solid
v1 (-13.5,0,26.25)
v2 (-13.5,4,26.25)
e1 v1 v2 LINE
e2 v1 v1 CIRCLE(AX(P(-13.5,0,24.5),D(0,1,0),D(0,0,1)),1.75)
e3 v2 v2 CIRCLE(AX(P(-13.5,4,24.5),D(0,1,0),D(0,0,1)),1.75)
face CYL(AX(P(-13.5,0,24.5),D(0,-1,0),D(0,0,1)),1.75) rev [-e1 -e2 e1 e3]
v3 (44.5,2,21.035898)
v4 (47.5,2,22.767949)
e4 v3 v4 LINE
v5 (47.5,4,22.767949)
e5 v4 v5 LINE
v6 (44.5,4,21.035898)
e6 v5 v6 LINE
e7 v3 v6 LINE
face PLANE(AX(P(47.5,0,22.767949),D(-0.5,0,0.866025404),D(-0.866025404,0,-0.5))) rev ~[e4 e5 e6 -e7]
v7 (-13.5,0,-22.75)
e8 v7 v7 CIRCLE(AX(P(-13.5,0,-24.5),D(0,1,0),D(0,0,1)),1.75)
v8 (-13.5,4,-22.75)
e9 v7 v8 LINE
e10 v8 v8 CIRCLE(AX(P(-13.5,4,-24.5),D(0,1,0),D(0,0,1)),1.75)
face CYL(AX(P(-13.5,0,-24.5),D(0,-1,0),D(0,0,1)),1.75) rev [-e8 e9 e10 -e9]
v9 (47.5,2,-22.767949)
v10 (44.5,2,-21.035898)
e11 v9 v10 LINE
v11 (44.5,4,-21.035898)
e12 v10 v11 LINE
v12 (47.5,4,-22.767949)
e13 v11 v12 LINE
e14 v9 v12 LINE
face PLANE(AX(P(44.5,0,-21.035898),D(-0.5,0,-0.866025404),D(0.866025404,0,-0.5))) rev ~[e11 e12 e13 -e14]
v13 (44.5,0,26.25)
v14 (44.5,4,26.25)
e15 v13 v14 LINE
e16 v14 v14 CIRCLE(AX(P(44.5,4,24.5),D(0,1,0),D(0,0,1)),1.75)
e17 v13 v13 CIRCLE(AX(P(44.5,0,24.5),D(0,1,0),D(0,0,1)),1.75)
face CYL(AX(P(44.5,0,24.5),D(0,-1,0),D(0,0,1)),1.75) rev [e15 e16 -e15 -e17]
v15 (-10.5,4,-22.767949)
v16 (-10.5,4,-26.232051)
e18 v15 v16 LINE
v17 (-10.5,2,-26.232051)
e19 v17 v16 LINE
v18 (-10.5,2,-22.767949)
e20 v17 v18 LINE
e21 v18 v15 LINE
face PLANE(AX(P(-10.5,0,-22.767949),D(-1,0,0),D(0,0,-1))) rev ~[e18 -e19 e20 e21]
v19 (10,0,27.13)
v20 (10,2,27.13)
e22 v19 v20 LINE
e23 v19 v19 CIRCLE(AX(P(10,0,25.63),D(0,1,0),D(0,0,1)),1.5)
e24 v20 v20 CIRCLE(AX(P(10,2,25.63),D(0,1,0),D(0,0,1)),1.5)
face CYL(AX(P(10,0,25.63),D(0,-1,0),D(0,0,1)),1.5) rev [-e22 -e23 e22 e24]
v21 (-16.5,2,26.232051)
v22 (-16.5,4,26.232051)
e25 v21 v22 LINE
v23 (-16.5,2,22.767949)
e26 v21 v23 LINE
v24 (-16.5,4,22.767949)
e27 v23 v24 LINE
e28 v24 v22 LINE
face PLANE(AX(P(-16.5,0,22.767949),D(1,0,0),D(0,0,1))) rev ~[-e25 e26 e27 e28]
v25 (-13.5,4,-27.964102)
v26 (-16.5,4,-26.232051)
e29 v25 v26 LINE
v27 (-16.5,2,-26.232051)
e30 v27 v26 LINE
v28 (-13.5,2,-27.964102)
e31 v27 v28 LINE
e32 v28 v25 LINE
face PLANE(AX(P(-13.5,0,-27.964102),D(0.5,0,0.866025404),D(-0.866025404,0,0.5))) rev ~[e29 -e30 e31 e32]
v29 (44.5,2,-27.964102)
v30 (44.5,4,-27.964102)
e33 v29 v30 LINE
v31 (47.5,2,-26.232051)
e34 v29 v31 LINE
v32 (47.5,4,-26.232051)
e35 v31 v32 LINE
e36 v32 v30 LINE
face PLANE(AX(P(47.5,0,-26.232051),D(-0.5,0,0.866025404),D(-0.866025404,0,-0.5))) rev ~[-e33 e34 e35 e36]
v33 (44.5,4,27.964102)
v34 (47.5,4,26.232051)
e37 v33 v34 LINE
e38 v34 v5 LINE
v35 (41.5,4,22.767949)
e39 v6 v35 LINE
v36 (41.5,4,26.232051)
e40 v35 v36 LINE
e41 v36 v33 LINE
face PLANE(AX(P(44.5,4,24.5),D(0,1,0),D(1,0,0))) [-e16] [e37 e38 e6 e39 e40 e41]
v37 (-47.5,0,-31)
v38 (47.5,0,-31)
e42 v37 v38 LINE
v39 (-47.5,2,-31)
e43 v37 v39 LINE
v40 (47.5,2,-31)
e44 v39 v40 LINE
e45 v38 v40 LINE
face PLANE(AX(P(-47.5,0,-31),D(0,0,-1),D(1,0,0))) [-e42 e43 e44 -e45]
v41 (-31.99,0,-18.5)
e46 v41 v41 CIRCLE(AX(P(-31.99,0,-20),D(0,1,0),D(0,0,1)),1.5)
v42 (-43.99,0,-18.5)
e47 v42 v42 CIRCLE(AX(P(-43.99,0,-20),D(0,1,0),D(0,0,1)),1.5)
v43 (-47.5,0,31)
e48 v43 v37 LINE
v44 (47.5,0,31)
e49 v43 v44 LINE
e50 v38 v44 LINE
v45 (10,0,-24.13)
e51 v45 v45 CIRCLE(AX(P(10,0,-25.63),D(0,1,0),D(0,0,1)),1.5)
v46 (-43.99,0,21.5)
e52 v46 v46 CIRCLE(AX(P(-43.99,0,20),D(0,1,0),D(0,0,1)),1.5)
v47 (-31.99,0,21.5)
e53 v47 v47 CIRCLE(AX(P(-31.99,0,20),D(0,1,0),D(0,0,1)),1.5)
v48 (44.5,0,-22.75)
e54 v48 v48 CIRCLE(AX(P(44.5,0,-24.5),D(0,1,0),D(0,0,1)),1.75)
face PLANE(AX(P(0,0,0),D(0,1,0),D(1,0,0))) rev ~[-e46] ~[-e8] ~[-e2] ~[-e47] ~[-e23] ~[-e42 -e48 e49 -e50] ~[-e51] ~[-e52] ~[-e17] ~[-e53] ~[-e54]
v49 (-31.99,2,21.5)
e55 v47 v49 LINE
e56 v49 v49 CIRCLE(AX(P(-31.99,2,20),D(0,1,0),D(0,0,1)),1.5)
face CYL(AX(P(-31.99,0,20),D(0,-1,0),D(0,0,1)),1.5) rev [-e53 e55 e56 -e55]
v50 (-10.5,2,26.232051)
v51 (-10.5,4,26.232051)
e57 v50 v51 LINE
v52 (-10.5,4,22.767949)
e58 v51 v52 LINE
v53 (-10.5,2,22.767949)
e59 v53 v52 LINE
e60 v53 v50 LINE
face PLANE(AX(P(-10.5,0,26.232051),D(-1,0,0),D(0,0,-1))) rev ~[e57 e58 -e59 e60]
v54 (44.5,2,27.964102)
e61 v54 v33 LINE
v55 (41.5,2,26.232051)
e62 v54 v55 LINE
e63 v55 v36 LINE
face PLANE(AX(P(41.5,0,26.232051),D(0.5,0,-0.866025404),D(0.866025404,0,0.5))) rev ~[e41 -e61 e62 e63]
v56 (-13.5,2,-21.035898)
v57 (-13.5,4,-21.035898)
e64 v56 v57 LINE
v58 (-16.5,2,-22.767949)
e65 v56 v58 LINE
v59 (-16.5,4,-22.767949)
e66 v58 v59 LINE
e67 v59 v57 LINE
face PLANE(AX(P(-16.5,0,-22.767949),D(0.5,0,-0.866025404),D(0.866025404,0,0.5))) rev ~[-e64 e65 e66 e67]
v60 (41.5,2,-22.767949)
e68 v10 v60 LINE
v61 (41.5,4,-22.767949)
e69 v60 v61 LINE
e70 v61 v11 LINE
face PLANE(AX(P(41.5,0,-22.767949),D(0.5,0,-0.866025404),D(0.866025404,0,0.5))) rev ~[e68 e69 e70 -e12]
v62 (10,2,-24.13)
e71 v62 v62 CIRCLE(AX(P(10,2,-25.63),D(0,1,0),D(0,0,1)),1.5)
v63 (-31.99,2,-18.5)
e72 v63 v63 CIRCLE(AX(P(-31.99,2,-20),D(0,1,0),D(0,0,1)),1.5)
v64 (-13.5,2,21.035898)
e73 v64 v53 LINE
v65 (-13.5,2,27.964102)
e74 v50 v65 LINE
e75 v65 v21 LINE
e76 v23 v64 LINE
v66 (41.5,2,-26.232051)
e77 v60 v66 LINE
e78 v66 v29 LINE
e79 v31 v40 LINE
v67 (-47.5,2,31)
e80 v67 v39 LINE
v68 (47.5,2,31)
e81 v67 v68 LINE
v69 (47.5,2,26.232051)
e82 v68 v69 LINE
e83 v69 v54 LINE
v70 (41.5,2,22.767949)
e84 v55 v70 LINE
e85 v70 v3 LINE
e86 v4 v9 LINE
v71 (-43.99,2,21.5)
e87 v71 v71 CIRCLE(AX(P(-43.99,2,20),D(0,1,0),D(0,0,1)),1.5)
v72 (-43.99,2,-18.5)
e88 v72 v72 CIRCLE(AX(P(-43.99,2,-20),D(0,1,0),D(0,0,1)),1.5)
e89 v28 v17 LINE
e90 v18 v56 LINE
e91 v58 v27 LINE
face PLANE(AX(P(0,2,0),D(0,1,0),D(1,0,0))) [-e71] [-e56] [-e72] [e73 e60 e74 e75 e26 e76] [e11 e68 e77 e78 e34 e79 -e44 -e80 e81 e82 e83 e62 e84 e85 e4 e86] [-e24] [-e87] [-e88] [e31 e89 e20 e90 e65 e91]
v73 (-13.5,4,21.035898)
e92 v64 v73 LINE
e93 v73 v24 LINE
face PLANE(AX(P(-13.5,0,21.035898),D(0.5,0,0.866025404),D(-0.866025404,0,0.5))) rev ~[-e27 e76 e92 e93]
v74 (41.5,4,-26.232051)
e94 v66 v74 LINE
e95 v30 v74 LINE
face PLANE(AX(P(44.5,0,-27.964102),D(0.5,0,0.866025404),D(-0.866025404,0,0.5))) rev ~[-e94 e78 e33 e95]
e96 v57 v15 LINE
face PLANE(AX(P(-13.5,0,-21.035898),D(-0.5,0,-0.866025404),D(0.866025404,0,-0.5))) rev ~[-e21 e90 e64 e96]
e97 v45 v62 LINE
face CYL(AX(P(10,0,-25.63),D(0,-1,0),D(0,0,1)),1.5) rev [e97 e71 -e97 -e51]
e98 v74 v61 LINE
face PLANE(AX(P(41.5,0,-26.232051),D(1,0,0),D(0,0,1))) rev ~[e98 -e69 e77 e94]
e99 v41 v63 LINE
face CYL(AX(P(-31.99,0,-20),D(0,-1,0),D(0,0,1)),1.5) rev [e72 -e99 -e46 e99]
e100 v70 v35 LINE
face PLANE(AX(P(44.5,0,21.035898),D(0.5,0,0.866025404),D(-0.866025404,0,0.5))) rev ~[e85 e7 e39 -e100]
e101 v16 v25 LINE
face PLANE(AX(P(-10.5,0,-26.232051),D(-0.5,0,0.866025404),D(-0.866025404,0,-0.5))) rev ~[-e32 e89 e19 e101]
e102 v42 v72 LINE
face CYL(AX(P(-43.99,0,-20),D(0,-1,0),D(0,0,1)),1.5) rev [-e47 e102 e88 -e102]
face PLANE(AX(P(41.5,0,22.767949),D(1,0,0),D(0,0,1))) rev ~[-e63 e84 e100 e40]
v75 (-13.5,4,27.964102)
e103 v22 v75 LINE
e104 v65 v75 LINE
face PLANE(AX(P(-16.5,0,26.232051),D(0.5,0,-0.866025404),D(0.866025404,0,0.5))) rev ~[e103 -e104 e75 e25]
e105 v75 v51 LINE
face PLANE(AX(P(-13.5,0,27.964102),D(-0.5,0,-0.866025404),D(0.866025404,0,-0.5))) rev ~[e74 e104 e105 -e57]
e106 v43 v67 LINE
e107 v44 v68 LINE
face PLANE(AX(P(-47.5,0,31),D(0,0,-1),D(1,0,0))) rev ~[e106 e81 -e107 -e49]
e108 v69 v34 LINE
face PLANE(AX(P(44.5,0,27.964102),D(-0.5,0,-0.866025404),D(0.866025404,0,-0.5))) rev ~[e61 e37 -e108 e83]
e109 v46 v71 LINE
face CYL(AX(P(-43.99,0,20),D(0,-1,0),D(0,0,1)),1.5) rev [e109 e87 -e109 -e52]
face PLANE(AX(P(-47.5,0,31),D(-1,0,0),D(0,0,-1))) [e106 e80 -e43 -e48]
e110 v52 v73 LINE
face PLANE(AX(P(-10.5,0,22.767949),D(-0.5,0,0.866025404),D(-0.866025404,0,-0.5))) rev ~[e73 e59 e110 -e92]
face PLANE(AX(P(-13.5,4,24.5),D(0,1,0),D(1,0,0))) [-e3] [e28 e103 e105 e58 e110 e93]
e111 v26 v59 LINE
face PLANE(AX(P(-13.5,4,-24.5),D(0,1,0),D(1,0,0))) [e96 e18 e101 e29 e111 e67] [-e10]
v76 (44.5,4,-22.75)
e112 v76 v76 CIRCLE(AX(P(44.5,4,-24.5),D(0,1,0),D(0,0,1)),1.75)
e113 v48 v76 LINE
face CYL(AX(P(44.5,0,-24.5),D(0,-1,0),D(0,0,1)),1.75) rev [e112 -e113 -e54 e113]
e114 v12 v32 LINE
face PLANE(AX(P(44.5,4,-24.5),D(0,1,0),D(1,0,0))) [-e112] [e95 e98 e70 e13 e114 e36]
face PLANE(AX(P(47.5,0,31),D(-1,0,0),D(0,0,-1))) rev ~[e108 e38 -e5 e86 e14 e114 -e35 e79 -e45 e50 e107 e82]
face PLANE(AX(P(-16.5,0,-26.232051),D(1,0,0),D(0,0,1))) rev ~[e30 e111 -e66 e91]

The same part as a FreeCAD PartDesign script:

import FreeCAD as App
import Part
import Sketcher

V = App.Vector
Q = App.Units.Quantity

doc = App.newDocument("Part")
params = doc.addObject("Spreadsheet::Sheet", "Params")
for row, (alias, value) in enumerate([
    ("sketch1_diameter", "3 mm"),
    ("sketch1_diameter2", "3.5 mm"),
    ("sketch1_width", "95 mm"),
    ("sketch1_height", "62 mm"),
    ("pad1_length", "2 mm"),
    ("sketch2_diameter", "3.5 mm"),
    ("pad2_length", "4 mm"),
], start=1):
    params.set(f"A{row}", alias)
    params.set(f"B{row}", "=" + value)
    params.setAlias(f"B{row}", alias)

body = doc.addObject("PartDesign::Body", "Body")

# Sketch on XZ plane
sketch1 = body.newObject("Sketcher::SketchObject", "Sketch")
sketch1.AttachmentSupport = (doc.getObject("XZ_Plane"), [""])
sketch1.MapMode = "FlatFace"
sketch1.addGeometry([
    Part.LineSegment(V(-47.5, -31, 0), V(-47.5, 31, 0)),  # 0
    Part.LineSegment(V(-47.5, 31, 0), V(47.5, 31, 0)),  # 1
    Part.LineSegment(V(47.5, 31, 0), V(47.5, -31, 0)),  # 2
    Part.LineSegment(V(47.5, -31, 0), V(-47.5, -31, 0)),  # 3
    Part.Circle(V(-43.99, 20, 0), V(0, 0, 1), 1.5),  # 4
    Part.Circle(V(-31.99, 20, 0), V(0, 0, 1), 1.5),  # 5
    Part.Circle(V(-13.5, 24.5, 0), V(0, 0, 1), 1.75),  # 6
    Part.Circle(V(10, 25.63, 0), V(0, 0, 1), 1.5),  # 7
    Part.Circle(V(44.5, 24.5, 0), V(0, 0, 1), 1.75),  # 8
    Part.Circle(V(-43.99, -20, 0), V(0, 0, 1), 1.5),  # 9
    Part.Circle(V(-31.99, -20, 0), V(0, 0, 1), 1.5),  # 10
    Part.Circle(V(-13.5, -24.5, 0), V(0, 0, 1), 1.75),  # 11
    Part.Circle(V(10, -25.63, 0), V(0, 0, 1), 1.5),  # 12
    Part.Circle(V(44.5, -24.5, 0), V(0, 0, 1), 1.75),  # 13
], False)
sketch1.addConstraint([
    Sketcher.Constraint("Coincident", 0, 2, 1, 1),
    Sketcher.Constraint("Coincident", 1, 2, 2, 1),
    Sketcher.Constraint("Coincident", 2, 2, 3, 1),
    Sketcher.Constraint("Coincident", 3, 2, 0, 1),
    Sketcher.Constraint("Vertical", 0),
    Sketcher.Constraint("Horizontal", 1),
    Sketcher.Constraint("Vertical", 2),
    Sketcher.Constraint("Horizontal", 3),
    Sketcher.Constraint("Equal", 4, 5),
    Sketcher.Constraint("Equal", 5, 7),
    Sketcher.Constraint("Equal", 6, 8),
    Sketcher.Constraint("Equal", 7, 9),
    Sketcher.Constraint("Equal", 9, 10),
    Sketcher.Constraint("Equal", 8, 11),
    Sketcher.Constraint("Equal", 10, 12),
    Sketcher.Constraint("Equal", 11, 13),
    Sketcher.Constraint("Symmetric", 0, 2, 2, 2, -1, 1),
    Sketcher.Constraint("Symmetric", 4, 3, 9, 3, -1),
    Sketcher.Constraint("Symmetric", 5, 3, 10, 3, -1),
    Sketcher.Constraint("Symmetric", 6, 3, 11, 3, -1),
    Sketcher.Constraint("Symmetric", 7, 3, 12, 3, -1),
    Sketcher.Constraint("Symmetric", 8, 3, 13, 3, -1),
    Sketcher.Constraint("Horizontal", 4, 3, 5, 3),
    Sketcher.Constraint("Horizontal", 6, 3, 8, 3),
    Sketcher.Constraint("Diameter", 4, 3.0),
    Sketcher.Constraint("Diameter", 6, 3.5),
    Sketcher.Constraint("DistanceX", 1, 1, 1, 2, 95.0),
    Sketcher.Constraint("DistanceY", 0, 1, 0, 2, 62.0),
    Sketcher.Constraint("DistanceY", -1, 1, 4, 3, 20.0),
    Sketcher.Constraint("DistanceX", -1, 1, 7, 3, 10.0),
    Sketcher.Constraint("DistanceX", 4, 3, 5, 3, 12.0),
    Sketcher.Constraint("DistanceX", 6, 3, 8, 3, 58.0),
    Sketcher.Constraint("DistanceY", 11, 3, 6, 3, 49.0),
    Sketcher.Constraint("DistanceX", 0, 2, 6, 3, 34.0),
    Sketcher.Constraint("DistanceX", 4, 3, -1, 1, 43.99),
    Sketcher.Constraint("DistanceY", -1, 1, 7, 3, 25.63),
])
sketch1.setExpression("Constraints[24]", "Params.sketch1_diameter")
sketch1.setExpression("Constraints[25]", "Params.sketch1_diameter2")
sketch1.setExpression("Constraints[26]", "Params.sketch1_width")
sketch1.setExpression("Constraints[27]", "Params.sketch1_height")
pad1 = body.newObject("PartDesign::Pad", "Pad")
pad1.Profile = sketch1
pad1.setExpression("Length", "Params.pad1_length")
pad1.Reversed = True

# Sketch on XZ plane
sketch2 = body.newObject("Sketcher::SketchObject", "Sketch001")
sketch2.AttachmentSupport = (doc.getObject("XZ_Plane"), [""])
sketch2.MapMode = "FlatFace"
sketch2.addGeometry([
    Part.LineSegment(V(-16.5, -22.767949, 0), V(-13.5, -21.035898, 0)),  # 0
    Part.LineSegment(V(-13.5, -21.035898, 0), V(-10.5, -22.767949, 0)),  # 1
    Part.LineSegment(V(-10.5, -22.767949, 0), V(-10.5, -26.232051, 0)),  # 2
    Part.LineSegment(V(-10.5, -26.232051, 0), V(-13.5, -27.964102, 0)),  # 3
    Part.LineSegment(V(-13.5, -27.964102, 0), V(-16.5, -26.232051, 0)),  # 4
    Part.LineSegment(V(-16.5, -26.232051, 0), V(-16.5, -22.767949, 0)),  # 5
    Part.Circle(V(-13.5, -24.5, 0), V(0, 0, 1), 1.75),  # 6
    Part.LineSegment(V(-16.5, 26.232051, 0), V(-13.5, 27.964102, 0)),  # 7
    Part.LineSegment(V(-13.5, 27.964102, 0), V(-10.5, 26.232051, 0)),  # 8
    Part.LineSegment(V(-10.5, 26.232051, 0), V(-10.5, 22.767949, 0)),  # 9
    Part.LineSegment(V(-10.5, 22.767949, 0), V(-13.5, 21.035898, 0)),  # 10
    Part.LineSegment(V(-13.5, 21.035898, 0), V(-16.5, 22.767949, 0)),  # 11
    Part.LineSegment(V(-16.5, 22.767949, 0), V(-16.5, 26.232051, 0)),  # 12
    Part.Circle(V(-13.5, 24.5, 0), V(0, 0, 1), 1.75),  # 13
    Part.LineSegment(V(44.5, 27.964102, 0), V(47.5, 26.232051, 0)),  # 14
    Part.LineSegment(V(47.5, 26.232051, 0), V(47.5, 22.767949, 0)),  # 15
    Part.LineSegment(V(47.5, 22.767949, 0), V(44.5, 21.035898, 0)),  # 16
    Part.LineSegment(V(44.5, 21.035898, 0), V(41.5, 22.767949, 0)),  # 17
    Part.LineSegment(V(41.5, 22.767949, 0), V(41.5, 26.232051, 0)),  # 18
    Part.LineSegment(V(41.5, 26.232051, 0), V(44.5, 27.964102, 0)),  # 19
    Part.Circle(V(44.5, 24.5, 0), V(0, 0, 1), 1.75),  # 20
    Part.LineSegment(V(47.5, -22.767949, 0), V(47.5, -26.232051, 0)),  # 21
    Part.LineSegment(V(47.5, -26.232051, 0), V(44.5, -27.964102, 0)),  # 22
    Part.LineSegment(V(44.5, -27.964102, 0), V(41.5, -26.232051, 0)),  # 23
    Part.LineSegment(V(41.5, -26.232051, 0), V(41.5, -22.767949, 0)),  # 24
    Part.LineSegment(V(41.5, -22.767949, 0), V(44.5, -21.035898, 0)),  # 25
    Part.LineSegment(V(44.5, -21.035898, 0), V(47.5, -22.767949, 0)),  # 26
    Part.Circle(V(44.5, -24.5, 0), V(0, 0, 1), 1.75),  # 27
], False)
sketch2.addConstraint([
    Sketcher.Constraint("Coincident", 0, 2, 1, 1),
    Sketcher.Constraint("Coincident", 1, 2, 2, 1),
    Sketcher.Constraint("Coincident", 2, 2, 3, 1),
    Sketcher.Constraint("Coincident", 3, 2, 4, 1),
    Sketcher.Constraint("Coincident", 4, 2, 5, 1),
    Sketcher.Constraint("Coincident", 5, 2, 0, 1),
    Sketcher.Constraint("Coincident", 7, 2, 8, 1),
    Sketcher.Constraint("Coincident", 8, 2, 9, 1),
    Sketcher.Constraint("Coincident", 9, 2, 10, 1),
    Sketcher.Constraint("Coincident", 10, 2, 11, 1),
    Sketcher.Constraint("Coincident", 11, 2, 12, 1),
    Sketcher.Constraint("Coincident", 12, 2, 7, 1),
    Sketcher.Constraint("Coincident", 14, 2, 15, 1),
    Sketcher.Constraint("Coincident", 15, 2, 16, 1),
    Sketcher.Constraint("Coincident", 16, 2, 17, 1),
    Sketcher.Constraint("Coincident", 17, 2, 18, 1),
    Sketcher.Constraint("Coincident", 18, 2, 19, 1),
    Sketcher.Constraint("Coincident", 19, 2, 14, 1),
    Sketcher.Constraint("Coincident", 21, 2, 22, 1),
    Sketcher.Constraint("Coincident", 22, 2, 23, 1),
    Sketcher.Constraint("Coincident", 23, 2, 24, 1),
    Sketcher.Constraint("Coincident", 24, 2, 25, 1),
    Sketcher.Constraint("Coincident", 25, 2, 26, 1),
    Sketcher.Constraint("Coincident", 26, 2, 21, 1),
    Sketcher.Constraint("Vertical", 2),
    Sketcher.Constraint("Vertical", 5),
    Sketcher.Constraint("Vertical", 9),
    Sketcher.Constraint("Vertical", 12),
    Sketcher.Constraint("Vertical", 15),
    Sketcher.Constraint("Vertical", 18),
    Sketcher.Constraint("Vertical", 21),
    Sketcher.Constraint("Vertical", 24),
    Sketcher.Constraint("Equal", 6, 13),
    Sketcher.Constraint("Equal", 13, 20),
    Sketcher.Constraint("Equal", 20, 27),
    Sketcher.Constraint("Symmetric", 6, 3, 13, 3, -1),
    Sketcher.Constraint("Symmetric", 20, 3, 27, 3, -1),
    Sketcher.Constraint("Symmetric", 3, 2, 7, 2, -1),
    Sketcher.Constraint("Symmetric", 2, 2, 8, 2, -1),
    Sketcher.Constraint("Symmetric", 0, 2, 10, 2, -1),
    Sketcher.Constraint("Symmetric", 5, 2, 11, 2, -1),
    Sketcher.Constraint("Symmetric", 14, 2, 21, 2, -1),
    Sketcher.Constraint("Symmetric", 19, 2, 22, 2, -1),
    Sketcher.Constraint("Symmetric", 18, 2, 23, 2, -1),
    Sketcher.Constraint("Symmetric", 16, 2, 25, 2, -1),
    Sketcher.Constraint("Parallel", 0, 3),
    Sketcher.Constraint("Parallel", 1, 4),
    Sketcher.Constraint("Parallel", 3, 7),
    Sketcher.Constraint("Parallel", 4, 8),
    Sketcher.Constraint("Parallel", 7, 10),
    Sketcher.Constraint("Parallel", 11, 14),
    Sketcher.Constraint("Parallel", 10, 16),
    Sketcher.Constraint("Parallel", 14, 17),
    Sketcher.Constraint("Parallel", 16, 19),
    Sketcher.Constraint("Parallel", 22, 25),
    Sketcher.Constraint("Parallel", 23, 26),
    Sketcher.Constraint("Horizontal", 13, 3, 20, 3),
    Sketcher.Constraint("Horizontal", 2, 2, 4, 2),
    Sketcher.Constraint("Horizontal", 1, 2, 5, 2),
    Sketcher.Constraint("Horizontal", 12, 2, 14, 2),
    Sketcher.Constraint("Horizontal", 11, 2, 15, 2),
    Sketcher.Constraint("Horizontal", 10, 2, 16, 2),
    Sketcher.Constraint("Horizontal", 15, 2, 17, 2),
    Sketcher.Constraint("Horizontal", 14, 2, 18, 2),
    Sketcher.Constraint("Vertical", 13, 3, 0, 2),
    Sketcher.Constraint("Vertical", 27, 3, 16, 2),
    Sketcher.Constraint("Diameter", 6, 3.5),
    Sketcher.Constraint("Angle", 0, Q("30 deg")),
    Sketcher.Constraint("DistanceY", 6, 3, 13, 3, 49.0),
    Sketcher.Constraint("DistanceX", 13, 3, 20, 3, 58.0),
    Sketcher.Constraint("DistanceX", 0, 2, 1, 2, 3.0),
    Sketcher.Constraint("DistanceY", 0, 2, 7, 2, 49.0),
    Sketcher.Constraint("DistanceX", 6, 3, -1, 1, 13.5),
    Sketcher.Constraint("DistanceY", 2, 2, 2, 1, 3.464102),
])
sketch2.setExpression("Constraints[66]", "Params.sketch2_diameter")
pad2 = body.newObject("PartDesign::Pad", "Pad001")
pad2.Profile = sketch2
pad2.setExpression("Length", "Params.pad2_length")
pad2.Reversed = True

doc.recompute()
